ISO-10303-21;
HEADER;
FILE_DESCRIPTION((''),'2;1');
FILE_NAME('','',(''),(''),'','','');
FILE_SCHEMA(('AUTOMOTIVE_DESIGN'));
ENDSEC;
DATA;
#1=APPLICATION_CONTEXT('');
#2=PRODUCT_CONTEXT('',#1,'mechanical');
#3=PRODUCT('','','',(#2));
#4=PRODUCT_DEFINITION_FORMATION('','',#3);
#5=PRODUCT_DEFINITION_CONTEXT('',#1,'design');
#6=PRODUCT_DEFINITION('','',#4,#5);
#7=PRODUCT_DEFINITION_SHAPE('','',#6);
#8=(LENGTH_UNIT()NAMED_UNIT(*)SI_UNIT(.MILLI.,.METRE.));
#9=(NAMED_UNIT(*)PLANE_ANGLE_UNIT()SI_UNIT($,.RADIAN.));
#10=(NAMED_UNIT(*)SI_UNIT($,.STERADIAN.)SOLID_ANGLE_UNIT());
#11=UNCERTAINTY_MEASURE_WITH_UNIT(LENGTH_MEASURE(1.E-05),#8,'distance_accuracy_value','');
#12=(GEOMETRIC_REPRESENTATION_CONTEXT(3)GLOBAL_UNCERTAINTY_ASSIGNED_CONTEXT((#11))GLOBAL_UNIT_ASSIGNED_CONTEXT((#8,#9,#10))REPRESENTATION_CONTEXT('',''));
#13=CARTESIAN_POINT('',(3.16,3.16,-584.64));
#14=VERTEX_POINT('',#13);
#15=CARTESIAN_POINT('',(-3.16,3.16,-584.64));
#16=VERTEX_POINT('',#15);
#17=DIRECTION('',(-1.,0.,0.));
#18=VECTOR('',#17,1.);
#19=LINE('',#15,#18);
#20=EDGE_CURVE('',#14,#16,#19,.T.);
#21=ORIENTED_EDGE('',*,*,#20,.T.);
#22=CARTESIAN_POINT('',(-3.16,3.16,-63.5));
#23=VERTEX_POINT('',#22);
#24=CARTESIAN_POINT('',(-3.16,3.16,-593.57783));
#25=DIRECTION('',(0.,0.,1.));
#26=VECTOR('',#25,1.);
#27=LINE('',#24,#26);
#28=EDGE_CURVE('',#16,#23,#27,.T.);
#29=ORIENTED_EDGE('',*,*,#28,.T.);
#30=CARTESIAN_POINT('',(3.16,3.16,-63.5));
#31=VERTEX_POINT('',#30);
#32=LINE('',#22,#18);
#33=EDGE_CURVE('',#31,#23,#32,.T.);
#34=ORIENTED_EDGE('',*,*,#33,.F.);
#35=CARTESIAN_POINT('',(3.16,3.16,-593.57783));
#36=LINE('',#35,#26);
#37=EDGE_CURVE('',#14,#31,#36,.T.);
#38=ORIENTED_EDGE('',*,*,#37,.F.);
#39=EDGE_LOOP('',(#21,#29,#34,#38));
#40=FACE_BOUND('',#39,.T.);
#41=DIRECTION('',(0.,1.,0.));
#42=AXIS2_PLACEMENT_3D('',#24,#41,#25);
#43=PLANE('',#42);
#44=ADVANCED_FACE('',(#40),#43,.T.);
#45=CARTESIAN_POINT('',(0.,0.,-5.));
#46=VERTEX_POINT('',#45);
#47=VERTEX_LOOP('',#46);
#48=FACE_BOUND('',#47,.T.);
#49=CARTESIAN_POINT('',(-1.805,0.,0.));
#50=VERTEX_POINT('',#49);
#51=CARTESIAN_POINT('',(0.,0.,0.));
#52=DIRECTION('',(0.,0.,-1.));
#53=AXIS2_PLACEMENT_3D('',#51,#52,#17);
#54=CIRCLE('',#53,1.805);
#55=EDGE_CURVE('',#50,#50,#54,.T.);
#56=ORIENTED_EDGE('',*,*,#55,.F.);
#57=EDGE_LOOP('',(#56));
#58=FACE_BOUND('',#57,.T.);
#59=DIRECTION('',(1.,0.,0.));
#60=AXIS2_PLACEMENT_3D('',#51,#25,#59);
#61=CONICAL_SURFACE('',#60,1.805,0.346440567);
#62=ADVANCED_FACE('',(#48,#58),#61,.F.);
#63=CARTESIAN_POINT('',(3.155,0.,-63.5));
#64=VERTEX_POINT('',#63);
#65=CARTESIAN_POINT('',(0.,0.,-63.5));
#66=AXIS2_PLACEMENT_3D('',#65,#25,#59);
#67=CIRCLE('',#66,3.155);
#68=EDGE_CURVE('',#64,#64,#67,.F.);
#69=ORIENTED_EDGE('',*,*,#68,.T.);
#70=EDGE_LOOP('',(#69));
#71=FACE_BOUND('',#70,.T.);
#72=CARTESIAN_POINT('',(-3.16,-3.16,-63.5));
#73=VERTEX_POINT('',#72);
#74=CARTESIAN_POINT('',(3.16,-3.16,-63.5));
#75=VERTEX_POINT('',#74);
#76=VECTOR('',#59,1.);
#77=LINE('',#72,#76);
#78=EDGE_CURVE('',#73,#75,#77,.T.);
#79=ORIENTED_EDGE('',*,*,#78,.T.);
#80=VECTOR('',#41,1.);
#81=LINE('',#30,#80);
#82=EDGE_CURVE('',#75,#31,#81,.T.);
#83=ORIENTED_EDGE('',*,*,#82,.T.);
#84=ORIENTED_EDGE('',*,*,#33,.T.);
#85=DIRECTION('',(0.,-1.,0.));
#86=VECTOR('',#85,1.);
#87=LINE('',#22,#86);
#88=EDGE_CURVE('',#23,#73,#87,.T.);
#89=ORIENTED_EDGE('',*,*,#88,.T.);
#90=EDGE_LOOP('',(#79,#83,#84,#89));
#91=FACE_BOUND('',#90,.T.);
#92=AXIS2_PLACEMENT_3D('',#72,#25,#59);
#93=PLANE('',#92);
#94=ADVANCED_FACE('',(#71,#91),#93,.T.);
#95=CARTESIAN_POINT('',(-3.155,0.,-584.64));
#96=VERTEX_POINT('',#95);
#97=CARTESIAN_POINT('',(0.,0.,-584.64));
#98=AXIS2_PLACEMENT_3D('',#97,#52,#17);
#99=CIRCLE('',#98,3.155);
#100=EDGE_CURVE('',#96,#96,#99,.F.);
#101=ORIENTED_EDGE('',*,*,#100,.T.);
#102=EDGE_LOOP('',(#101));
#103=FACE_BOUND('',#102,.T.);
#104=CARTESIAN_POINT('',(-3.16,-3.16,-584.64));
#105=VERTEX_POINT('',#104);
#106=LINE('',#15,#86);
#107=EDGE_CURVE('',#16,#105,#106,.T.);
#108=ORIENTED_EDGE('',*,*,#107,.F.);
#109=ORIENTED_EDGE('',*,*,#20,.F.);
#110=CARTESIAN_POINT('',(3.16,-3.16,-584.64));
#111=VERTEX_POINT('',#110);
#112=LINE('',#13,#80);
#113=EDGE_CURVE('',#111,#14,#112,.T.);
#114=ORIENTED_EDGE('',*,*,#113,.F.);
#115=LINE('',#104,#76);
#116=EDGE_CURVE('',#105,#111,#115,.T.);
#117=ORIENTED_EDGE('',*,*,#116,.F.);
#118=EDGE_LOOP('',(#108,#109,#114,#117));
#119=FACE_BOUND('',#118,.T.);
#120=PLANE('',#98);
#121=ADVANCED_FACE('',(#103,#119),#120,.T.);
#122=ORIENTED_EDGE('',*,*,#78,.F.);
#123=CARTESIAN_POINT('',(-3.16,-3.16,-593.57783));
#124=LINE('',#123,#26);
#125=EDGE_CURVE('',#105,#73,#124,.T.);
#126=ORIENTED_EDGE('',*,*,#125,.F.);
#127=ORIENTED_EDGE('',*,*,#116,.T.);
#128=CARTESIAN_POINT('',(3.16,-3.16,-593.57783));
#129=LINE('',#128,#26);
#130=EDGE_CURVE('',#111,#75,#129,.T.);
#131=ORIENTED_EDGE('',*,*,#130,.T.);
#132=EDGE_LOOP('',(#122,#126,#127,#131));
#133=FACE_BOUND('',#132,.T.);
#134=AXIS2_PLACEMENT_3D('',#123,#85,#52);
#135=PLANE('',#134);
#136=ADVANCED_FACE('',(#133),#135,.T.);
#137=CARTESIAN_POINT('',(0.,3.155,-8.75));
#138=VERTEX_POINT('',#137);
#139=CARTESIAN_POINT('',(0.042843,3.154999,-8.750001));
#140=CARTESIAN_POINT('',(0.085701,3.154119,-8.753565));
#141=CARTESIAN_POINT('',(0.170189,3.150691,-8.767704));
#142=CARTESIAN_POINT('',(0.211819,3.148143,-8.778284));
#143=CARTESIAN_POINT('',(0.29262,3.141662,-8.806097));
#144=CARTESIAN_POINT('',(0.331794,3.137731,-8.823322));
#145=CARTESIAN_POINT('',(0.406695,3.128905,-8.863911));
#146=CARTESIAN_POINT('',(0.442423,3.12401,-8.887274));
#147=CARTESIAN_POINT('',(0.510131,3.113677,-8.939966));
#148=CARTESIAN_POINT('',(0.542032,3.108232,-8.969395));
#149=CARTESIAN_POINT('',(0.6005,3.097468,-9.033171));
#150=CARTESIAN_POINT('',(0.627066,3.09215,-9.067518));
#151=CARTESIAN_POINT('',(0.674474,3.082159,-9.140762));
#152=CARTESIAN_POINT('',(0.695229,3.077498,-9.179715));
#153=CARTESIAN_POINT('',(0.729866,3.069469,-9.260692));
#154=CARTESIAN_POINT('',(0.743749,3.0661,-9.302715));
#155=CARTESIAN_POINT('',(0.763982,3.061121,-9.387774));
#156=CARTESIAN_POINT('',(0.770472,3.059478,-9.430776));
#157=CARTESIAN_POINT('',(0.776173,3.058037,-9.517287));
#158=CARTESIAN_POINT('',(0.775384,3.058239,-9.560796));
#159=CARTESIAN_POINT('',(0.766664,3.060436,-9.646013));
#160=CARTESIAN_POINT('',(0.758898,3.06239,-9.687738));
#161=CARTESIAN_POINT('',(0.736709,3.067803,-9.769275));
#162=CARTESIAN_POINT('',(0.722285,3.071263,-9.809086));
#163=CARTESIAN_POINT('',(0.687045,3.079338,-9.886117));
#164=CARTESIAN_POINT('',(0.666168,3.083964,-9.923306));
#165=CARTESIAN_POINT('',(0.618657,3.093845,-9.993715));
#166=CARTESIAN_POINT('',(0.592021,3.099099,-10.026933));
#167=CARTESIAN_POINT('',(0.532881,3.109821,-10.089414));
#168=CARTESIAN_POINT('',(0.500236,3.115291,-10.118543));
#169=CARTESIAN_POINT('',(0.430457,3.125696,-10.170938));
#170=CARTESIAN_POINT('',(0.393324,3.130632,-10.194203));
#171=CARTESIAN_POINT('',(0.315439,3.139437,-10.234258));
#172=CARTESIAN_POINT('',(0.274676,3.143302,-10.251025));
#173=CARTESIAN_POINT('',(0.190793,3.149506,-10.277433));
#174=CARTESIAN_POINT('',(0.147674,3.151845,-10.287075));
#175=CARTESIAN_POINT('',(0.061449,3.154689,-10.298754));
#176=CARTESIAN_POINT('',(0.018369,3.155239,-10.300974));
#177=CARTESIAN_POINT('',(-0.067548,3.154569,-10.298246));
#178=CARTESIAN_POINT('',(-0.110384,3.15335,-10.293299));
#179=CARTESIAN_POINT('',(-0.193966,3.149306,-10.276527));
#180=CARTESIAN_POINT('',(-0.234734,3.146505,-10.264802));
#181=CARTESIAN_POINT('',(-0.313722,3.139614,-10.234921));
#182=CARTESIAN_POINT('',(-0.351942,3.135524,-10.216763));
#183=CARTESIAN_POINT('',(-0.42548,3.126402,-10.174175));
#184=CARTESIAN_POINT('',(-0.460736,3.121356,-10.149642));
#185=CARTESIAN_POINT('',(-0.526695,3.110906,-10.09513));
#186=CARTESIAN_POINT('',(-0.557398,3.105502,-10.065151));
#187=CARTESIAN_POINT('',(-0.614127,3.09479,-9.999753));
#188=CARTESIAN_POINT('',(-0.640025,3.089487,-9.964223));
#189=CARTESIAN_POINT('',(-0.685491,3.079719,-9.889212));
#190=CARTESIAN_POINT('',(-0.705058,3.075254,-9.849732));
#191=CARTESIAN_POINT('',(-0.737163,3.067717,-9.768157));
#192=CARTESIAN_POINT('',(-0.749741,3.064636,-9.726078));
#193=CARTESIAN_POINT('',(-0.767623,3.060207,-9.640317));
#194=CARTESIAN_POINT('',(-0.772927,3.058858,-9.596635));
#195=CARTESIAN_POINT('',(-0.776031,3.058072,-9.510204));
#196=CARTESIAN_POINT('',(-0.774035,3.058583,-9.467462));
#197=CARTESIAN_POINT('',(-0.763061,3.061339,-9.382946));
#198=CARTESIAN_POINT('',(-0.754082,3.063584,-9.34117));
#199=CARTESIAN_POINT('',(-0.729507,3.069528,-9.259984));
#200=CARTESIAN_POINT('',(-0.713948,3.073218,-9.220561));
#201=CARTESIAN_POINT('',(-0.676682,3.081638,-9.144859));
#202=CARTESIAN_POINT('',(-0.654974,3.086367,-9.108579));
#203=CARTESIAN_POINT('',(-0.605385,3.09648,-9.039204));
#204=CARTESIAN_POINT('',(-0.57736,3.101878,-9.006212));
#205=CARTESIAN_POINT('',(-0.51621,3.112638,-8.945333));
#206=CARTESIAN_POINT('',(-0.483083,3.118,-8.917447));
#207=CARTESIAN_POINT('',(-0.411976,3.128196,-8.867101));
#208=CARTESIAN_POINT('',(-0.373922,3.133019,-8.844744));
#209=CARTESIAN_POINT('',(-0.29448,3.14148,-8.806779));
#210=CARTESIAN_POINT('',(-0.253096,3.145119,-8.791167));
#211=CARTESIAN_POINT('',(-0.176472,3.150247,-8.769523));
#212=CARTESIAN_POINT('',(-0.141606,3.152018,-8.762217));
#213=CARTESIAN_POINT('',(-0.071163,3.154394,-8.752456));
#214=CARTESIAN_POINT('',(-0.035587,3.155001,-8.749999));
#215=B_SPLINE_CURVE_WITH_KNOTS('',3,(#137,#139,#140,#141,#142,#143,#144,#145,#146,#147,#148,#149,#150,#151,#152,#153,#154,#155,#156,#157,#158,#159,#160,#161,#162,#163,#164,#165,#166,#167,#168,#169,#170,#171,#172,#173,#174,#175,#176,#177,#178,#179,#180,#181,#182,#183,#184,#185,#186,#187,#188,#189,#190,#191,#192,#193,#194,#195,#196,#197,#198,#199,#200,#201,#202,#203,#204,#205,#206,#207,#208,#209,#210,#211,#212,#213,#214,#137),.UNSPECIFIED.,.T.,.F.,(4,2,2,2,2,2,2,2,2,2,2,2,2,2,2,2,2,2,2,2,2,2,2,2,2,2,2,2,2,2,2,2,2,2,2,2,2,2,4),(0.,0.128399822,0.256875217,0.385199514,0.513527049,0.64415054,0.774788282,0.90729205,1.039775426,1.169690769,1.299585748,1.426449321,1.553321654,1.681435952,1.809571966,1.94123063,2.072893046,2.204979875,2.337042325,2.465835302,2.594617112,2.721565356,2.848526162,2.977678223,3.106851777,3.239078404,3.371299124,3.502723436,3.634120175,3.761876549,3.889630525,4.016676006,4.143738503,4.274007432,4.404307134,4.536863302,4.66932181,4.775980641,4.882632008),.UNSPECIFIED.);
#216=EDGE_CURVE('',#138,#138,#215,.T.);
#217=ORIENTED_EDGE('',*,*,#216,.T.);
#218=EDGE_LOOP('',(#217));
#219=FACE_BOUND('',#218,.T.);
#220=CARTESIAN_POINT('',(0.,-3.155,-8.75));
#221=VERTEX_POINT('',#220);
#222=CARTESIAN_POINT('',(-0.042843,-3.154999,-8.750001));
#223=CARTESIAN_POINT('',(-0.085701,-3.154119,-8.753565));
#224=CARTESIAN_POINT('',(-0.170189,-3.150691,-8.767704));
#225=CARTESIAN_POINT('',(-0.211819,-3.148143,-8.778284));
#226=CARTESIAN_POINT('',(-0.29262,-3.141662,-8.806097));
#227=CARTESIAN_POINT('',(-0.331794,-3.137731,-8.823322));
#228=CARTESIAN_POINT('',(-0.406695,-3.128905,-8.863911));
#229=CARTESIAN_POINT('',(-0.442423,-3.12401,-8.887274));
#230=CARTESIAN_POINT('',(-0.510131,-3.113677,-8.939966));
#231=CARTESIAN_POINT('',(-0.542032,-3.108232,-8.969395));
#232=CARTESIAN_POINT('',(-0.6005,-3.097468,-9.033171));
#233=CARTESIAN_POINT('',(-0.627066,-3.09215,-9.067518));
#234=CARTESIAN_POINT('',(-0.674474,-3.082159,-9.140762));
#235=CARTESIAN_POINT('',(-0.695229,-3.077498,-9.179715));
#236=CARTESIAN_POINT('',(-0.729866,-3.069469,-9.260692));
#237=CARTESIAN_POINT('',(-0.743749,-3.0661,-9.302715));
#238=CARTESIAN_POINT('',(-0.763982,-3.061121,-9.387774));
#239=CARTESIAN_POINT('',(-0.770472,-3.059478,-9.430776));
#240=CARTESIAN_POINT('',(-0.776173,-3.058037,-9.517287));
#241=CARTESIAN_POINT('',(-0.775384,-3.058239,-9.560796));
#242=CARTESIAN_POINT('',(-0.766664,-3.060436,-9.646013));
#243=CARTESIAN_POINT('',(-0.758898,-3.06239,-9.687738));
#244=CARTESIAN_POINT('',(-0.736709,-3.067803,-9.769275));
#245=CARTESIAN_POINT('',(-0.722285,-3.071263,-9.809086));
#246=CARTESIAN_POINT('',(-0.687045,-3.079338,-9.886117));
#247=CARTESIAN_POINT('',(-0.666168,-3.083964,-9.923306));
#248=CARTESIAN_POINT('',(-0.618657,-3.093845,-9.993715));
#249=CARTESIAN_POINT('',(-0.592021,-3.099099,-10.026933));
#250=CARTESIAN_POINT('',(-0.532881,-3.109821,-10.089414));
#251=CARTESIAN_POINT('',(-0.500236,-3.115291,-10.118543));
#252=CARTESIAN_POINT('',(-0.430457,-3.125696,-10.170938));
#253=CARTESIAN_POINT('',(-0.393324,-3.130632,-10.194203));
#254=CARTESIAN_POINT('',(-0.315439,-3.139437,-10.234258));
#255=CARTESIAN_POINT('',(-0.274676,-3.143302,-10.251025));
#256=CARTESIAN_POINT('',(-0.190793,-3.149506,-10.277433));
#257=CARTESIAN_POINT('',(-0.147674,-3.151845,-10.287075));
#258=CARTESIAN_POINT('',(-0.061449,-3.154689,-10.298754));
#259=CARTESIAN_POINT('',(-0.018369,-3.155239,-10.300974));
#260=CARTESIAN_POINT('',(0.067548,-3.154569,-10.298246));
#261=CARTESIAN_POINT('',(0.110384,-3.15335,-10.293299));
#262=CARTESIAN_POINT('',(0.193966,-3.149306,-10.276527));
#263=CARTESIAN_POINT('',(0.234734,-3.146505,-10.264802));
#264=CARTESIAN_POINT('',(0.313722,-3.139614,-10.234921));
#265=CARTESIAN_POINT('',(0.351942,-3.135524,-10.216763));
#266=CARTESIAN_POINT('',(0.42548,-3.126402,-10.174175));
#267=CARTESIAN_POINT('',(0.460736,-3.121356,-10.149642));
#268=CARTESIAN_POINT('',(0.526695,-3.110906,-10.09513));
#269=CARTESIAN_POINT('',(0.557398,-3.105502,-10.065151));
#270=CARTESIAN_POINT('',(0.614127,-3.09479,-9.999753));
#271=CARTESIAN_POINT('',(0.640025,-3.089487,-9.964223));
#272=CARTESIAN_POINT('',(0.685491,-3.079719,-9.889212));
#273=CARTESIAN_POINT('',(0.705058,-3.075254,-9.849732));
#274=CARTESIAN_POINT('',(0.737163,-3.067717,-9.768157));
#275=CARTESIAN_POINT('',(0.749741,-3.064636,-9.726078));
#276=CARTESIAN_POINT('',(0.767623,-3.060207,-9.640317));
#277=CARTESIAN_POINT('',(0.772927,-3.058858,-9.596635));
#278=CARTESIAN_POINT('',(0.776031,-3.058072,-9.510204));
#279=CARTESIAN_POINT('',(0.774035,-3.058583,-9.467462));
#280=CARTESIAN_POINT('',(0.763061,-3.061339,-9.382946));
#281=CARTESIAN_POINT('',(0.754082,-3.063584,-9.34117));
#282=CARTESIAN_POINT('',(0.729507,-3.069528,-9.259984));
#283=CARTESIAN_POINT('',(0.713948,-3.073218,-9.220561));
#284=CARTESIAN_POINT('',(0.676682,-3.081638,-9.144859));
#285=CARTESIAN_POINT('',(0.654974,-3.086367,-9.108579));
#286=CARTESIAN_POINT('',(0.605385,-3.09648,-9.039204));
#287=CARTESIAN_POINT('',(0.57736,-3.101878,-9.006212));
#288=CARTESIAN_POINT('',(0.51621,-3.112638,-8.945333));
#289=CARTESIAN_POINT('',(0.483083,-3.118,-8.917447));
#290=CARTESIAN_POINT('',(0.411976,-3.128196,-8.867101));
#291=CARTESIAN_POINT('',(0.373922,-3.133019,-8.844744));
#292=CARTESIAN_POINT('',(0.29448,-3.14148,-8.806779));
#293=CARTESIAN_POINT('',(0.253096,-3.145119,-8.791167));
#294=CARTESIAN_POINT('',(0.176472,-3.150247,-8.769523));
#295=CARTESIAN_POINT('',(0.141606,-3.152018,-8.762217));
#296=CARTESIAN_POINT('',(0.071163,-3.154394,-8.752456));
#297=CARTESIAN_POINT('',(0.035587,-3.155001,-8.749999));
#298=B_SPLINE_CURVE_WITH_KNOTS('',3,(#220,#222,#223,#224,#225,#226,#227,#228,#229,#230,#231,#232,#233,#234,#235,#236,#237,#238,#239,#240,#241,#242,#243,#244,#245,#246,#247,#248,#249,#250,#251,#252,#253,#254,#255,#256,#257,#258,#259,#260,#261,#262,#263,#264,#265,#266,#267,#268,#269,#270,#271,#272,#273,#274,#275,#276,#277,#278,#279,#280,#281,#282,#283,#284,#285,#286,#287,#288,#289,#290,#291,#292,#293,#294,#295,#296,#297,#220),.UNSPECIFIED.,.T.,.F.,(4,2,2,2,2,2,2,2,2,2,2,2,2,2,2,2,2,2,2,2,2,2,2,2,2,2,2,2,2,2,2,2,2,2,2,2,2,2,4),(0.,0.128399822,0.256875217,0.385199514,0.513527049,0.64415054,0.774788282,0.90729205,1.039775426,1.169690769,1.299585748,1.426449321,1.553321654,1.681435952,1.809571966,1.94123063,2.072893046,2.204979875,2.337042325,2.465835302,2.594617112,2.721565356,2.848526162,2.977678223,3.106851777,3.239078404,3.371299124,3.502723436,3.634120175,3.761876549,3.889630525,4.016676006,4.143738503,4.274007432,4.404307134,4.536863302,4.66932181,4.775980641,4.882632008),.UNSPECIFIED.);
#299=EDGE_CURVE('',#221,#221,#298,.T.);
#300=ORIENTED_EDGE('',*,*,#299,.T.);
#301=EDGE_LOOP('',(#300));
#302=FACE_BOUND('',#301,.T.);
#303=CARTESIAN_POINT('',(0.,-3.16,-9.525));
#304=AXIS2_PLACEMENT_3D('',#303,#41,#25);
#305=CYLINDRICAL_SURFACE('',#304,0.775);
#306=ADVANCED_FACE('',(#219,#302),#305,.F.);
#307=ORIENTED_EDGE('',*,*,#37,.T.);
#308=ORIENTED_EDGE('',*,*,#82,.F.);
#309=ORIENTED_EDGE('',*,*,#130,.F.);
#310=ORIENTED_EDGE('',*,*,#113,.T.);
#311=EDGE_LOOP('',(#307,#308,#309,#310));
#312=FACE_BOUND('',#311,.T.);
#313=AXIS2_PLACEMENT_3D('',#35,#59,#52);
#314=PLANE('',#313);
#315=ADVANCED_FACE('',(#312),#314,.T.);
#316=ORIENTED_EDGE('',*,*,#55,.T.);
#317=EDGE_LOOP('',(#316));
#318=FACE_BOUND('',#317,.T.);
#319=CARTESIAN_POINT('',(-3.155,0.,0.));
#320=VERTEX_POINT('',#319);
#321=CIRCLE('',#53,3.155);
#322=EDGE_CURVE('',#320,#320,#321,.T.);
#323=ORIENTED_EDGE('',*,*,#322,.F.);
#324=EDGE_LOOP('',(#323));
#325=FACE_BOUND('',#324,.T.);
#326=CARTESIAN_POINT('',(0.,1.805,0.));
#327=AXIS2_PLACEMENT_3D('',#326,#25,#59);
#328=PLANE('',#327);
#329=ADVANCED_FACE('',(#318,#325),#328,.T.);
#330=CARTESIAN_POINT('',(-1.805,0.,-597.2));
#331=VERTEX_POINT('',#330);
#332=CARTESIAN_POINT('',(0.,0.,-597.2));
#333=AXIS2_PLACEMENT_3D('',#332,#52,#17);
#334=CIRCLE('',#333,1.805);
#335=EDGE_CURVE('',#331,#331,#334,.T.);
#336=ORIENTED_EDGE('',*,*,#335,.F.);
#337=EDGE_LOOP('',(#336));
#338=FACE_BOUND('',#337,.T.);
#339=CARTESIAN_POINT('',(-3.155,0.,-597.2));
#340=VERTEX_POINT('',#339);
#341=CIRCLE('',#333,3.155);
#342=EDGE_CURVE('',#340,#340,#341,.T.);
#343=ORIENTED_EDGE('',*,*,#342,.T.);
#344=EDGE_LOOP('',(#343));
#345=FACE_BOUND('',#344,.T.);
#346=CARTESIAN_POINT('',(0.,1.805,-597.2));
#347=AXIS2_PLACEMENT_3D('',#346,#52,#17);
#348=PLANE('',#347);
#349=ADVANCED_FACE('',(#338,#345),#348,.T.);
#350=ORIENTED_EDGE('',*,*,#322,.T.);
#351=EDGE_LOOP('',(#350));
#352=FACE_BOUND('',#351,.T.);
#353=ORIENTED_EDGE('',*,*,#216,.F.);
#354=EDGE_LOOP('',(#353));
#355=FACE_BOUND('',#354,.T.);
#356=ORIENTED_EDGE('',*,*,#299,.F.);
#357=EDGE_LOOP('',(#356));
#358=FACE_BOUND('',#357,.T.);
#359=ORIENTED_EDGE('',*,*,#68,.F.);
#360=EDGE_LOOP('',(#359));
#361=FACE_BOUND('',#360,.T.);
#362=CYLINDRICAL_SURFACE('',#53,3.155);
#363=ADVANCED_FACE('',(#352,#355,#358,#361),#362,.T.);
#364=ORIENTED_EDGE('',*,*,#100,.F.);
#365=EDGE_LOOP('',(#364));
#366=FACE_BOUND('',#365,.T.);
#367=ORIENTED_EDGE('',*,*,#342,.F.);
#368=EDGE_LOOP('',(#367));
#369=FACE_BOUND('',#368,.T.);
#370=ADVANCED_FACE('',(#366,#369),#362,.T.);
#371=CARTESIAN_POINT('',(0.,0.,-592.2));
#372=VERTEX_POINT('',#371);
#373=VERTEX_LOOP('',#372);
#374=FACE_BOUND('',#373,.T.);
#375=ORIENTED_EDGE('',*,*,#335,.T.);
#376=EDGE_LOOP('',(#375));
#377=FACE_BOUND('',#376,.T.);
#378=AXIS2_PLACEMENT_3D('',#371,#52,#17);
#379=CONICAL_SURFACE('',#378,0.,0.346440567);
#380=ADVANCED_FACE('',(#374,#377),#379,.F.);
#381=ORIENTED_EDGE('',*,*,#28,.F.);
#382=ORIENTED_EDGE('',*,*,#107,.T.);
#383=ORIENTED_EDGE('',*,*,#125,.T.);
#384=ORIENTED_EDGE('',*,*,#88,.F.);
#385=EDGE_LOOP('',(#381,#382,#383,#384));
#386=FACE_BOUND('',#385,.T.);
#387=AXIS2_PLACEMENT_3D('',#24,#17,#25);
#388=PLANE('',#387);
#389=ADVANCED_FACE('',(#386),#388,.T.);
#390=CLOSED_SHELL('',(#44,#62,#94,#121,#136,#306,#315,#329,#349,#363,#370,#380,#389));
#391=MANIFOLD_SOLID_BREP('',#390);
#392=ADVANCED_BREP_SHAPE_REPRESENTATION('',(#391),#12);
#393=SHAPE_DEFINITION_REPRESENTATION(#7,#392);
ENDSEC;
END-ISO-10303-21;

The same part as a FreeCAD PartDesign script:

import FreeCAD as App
import Part
import Sketcher

V = App.Vector

doc = App.newDocument("Part")
body = doc.addObject("PartDesign::Body", "Body")

# Sketch on YZ plane
sketch1 = body.newObject("Sketcher::SketchObject", "Sketch")
sketch1.AttachmentSupport = (doc.getObject("YZ_Plane"), [""])
sketch1.MapMode = "FlatFace"
sketch1.addGeometry(Part.LineSegment(V(0, -5, 0), V(0, -592.2, 0)), False)
sketch1.addGeometry(Part.LineSegment(V(0, -592.2, 0), V(1.8, -597.2, 0)), False)
sketch1.addGeometry(Part.LineSegment(V(1.8, -597.2, 0), V(3.2, -597.2, 0)), False)
sketch1.addGeometry(Part.LineSegment(V(3.2, -597.2, 0), V(3.2, 0, 0)), False)
sketch1.addGeometry(Part.LineSegment(V(3.2, 0, 0), V(1.8, 0, 0)), False)
sketch1.addGeometry(Part.LineSegment(V(1.8, 0, 0), V(0, -5, 0)), False)
sketch1.addConstraint(Sketcher.Constraint("Coincident", 0, 2, 1, 1))
sketch1.addConstraint(Sketcher.Constraint("Coincident", 1, 2, 2, 1))
sketch1.addConstraint(Sketcher.Constraint("Coincident", 2, 2, 3, 1))
sketch1.addConstraint(Sketcher.Constraint("Coincident", 3, 2, 4, 1))
sketch1.addConstraint(Sketcher.Constraint("Coincident", 4, 2, 5, 1))
sketch1.addConstraint(Sketcher.Constraint("Coincident", 5, 2, 0, 1))
sketch1.addConstraint(Sketcher.Constraint("Vertical", 0))
sketch1.addConstraint(Sketcher.Constraint("Horizontal", 2))
sketch1.addConstraint(Sketcher.Constraint("Vertical", 3))
sketch1.addConstraint(Sketcher.Constraint("Horizontal", 4))
sketch1.addConstraint(Sketcher.Constraint("PointOnObject", 0, 2, -2))
sketch1.addConstraint(Sketcher.Constraint("PointOnObject", 3, 2, -1))
sketch1.addConstraint(Sketcher.Constraint("Vertical", 1, 2, 4, 2))
sketch1.addConstraint(Sketcher.Constraint("Equal", 1, 5))
sketch1.addConstraint(Sketcher.Constraint("DistanceY", 0, 2, 0, 1, 587.2))
sketch1.addConstraint(Sketcher.Constraint("DistanceY", 3, 1, 3, 2, 597.2))
sketch1.addConstraint(Sketcher.Constraint("DistanceX", 2, 1, 2, 2, 1.35))
sketch1.addConstraint(Sketcher.Constraint("DistanceX", -1, 1, 1, 2, 1.805))
revolution = body.newObject("PartDesign::Revolution", "Revolution")
revolution.Profile = sketch1
revolution.ReferenceAxis = (sketch1, ["V_Axis"])
revolution.Angle = 360

# Sketch on XY plane
sketch2 = body.newObject("Sketcher::SketchObject", "Sketch001")
sketch2.AttachmentSupport = (doc.getObject("XY_Plane"), [""])
sketch2.MapMode = "FlatFace"
sketch2.AttachmentOffset = App.Placement(V(0, 0, -63.5), App.Rotation())
sketch2.addGeometry(Part.LineSegment(V(-3, 3, 0), V(-3, -3, 0)), False)
sketch2.addGeometry(Part.LineSegment(V(-3, -3, 0), V(3, -3, 0)), False)
sketch2.addGeometry(Part.LineSegment(V(3, -3, 0), V(3, 3, 0)), False)
sketch2.addGeometry(Part.LineSegment(V(3, 3, 0), V(-3, 3, 0)), False)
sketch2.addConstraint(Sketcher.Constraint("Coincident", 0, 2, 1, 1))
sketch2.addConstraint(Sketcher.Constraint("Coincident", 1, 2, 2, 1))
sketch2.addConstraint(Sketcher.Constraint("Coincident", 2, 2, 3, 1))
sketch2.addConstraint(Sketcher.Constraint("Coincident", 3, 2, 0, 1))
sketch2.addConstraint(Sketcher.Constraint("Vertical", 0))
sketch2.addConstraint(Sketcher.Constraint("Horizontal", 1))
sketch2.addConstraint(Sketcher.Constraint("Vertical", 2))
sketch2.addConstraint(Sketcher.Constraint("Horizontal", 3))
sketch2.addConstraint(Sketcher.Constraint("Symmetric", 0, 2, 2, 2, -1, 1))
sketch2.addConstraint(Sketcher.Constraint("Equal", 3, 0))
sketch2.addConstraint(Sketcher.Constraint("DistanceX", 1, 1, 1, 2, 6.32))
pad1 = body.newObject("PartDesign::Pad", "Pad")
pad1.Profile = sketch2
pad1.Length = 521.14
pad1.Reversed = True

# Sketch on XZ plane
sketch3 = body.newObject("Sketcher::SketchObject", "Sketch002")
sketch3.AttachmentSupport = (doc.getObject("XZ_Plane"), [""])
sketch3.MapMode = "FlatFace"
sketch3.addGeometry(Part.Circle(V(0, -9.5, 0), V(0, 0, 1), 0.8), False)
sketch3.addConstraint(Sketcher.Constraint("PointOnObject", 0, 3, -2))
sketch3.addConstraint(Sketcher.Constraint("Diameter", 0, 1.55))
sketch3.addConstraint(Sketcher.Constraint("DistanceY", 0, 3, -1, 1, 9.525))
pocket1 = body.newObject("PartDesign::Pocket", "Pocket")
pocket1.Profile = sketch3
pocket1.Type = "ThroughAll"
pocket1.Midplane = True

doc.recompute()
